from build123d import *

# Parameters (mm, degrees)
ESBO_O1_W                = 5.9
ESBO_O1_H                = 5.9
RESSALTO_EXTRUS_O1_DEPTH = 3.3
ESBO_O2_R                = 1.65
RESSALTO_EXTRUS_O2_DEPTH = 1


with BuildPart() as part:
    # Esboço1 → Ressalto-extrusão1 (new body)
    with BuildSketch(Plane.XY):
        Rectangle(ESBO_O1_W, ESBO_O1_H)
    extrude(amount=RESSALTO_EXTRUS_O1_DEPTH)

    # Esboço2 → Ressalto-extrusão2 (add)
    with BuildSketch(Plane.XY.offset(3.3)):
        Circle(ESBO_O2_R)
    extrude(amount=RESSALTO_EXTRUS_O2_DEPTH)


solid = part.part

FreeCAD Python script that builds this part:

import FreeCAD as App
import Part
import Sketcher
from FreeCAD import Vector

doc = App.newDocument("Part")
params = doc.addObject("Spreadsheet::Sheet", "Params")
for row, (alias, value) in enumerate([
    ("sketch1_width", "5.9 mm"),
    ("pad1_length", "3.3 mm"),
    ("sketch2_diameter", "3.3 mm"),
    ("pad2_length", "1 mm"),
], start=1):
    params.set(f"A{row}", alias)
    params.set(f"B{row}", "=" + value)
    params.setAlias(f"B{row}", alias)

body = doc.addObject("PartDesign::Body", "Body")

# Sketch on XY plane
sketch1 = doc.addObject("Sketcher::SketchObject", "Sketch")
body.addObject(sketch1)
sketch1.AttachmentSupport = (doc.XY_Plane, [""])
sketch1.MapMode = "FlatFace"
sketch1.addGeometry([
    Part.LineSegment(Vector(-3, 3, 0), Vector(-3, -3, 0)),
    Part.LineSegment(Vector(-3, -3, 0), Vector(3, -3, 0)),
    Part.LineSegment(Vector(3, -3, 0), Vector(3, 3, 0)),
    Part.LineSegment(Vector(3, 3, 0), Vector(-3, 3, 0)),
], False)
sketch1.addConstraint([
    Sketcher.Constraint("Coincident", 0, 2, 1, 1),
    Sketcher.Constraint("Coincident", 1, 2, 2, 1),
    Sketcher.Constraint("Coincident", 2, 2, 3, 1),
    Sketcher.Constraint("Coincident", 3, 2, 0, 1),
    Sketcher.Constraint("Vertical", 0),
    Sketcher.Constraint("Horizontal", 1),
    Sketcher.Constraint("Vertical", 2),
    Sketcher.Constraint("Horizontal", 3),
    Sketcher.Constraint("Symmetric", 0, 2, 2, 2, -1, 1),
    Sketcher.Constraint("Equal", 3, 0),
    Sketcher.Constraint("DistanceX", 1, 1, 1, 2, 5.9),
])
sketch1.setExpression("Constraints[10]", "Params.sketch1_width")
pad1 = doc.addObject("PartDesign::Pad", "Pad")
body.addObject(pad1)
pad1.Profile = sketch1
pad1.setExpression("Length", "Params.pad1_length")

# Sketch on XY plane
sketch2 = doc.addObject("Sketcher::SketchObject", "Sketch001")
body.addObject(sketch2)
sketch2.AttachmentSupport = (doc.XY_Plane, [""])
sketch2.MapMode = "FlatFace"
sketch2.AttachmentOffset = App.Placement(Vector(0, 0, 3.3), App.Rotation())
sketch2.addGeometry(Part.Circle(Vector(0, 0, 0), Vector(0, 0, 1), 1.6), False)
sketch2.addConstraint([
    Sketcher.Constraint("Coincident", 0, 3, -1, 1),
    Sketcher.Constraint("Diameter", 0, 3.3),
])
sketch2.setExpression("Constraints[1]", "Params.sketch2_diameter")
pad2 = doc.addObject("PartDesign::Pad", "Pad001")
body.addObject(pad2)
pad2.Profile = sketch2
pad2.setExpression("Length", "Params.pad2_length")

doc.recompute()
